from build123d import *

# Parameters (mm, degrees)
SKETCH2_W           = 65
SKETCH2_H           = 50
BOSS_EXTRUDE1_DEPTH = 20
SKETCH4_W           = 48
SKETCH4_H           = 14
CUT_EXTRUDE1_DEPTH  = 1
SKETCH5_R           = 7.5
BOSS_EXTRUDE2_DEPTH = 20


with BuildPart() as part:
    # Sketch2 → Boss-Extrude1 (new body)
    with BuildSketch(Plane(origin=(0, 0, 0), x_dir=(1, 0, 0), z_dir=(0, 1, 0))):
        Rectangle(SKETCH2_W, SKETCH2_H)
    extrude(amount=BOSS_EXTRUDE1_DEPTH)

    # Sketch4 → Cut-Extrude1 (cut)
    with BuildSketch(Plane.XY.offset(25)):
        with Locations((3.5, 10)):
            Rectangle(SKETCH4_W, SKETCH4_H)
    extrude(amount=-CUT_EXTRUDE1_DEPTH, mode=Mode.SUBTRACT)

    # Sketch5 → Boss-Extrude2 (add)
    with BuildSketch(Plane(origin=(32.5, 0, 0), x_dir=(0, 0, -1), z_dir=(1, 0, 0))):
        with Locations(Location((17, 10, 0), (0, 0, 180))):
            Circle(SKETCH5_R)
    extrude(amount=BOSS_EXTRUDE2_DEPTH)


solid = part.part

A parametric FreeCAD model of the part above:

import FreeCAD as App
import Part
import Sketcher
from FreeCAD import Vector

doc = App.newDocument("Part")
body = doc.addObject("PartDesign::Body", "Body")

# Sketch on XZ plane
sketch1 = doc.addObject("Sketcher::SketchObject", "Sketch")
body.addObject(sketch1)
sketch1.AttachmentSupport = (doc.XZ_Plane, [""])
sketch1.MapMode = "FlatFace"
sketch1.addGeometry([
    Part.LineSegment(Vector(-32, -25, 0), Vector(-32, 25, 0)),
    Part.LineSegment(Vector(-32, 25, 0), Vector(32, 25, 0)),
    Part.LineSegment(Vector(32, 25, 0), Vector(32, -25, 0)),
    Part.LineSegment(Vector(32, -25, 0), Vector(-32, -25, 0)),
], False)
sketch1.addConstraint([
    Sketcher.Constraint("Coincident", 0, 2, 1, 1),
    Sketcher.Constraint("Coincident", 1, 2, 2, 1),
    Sketcher.Constraint("Coincident", 2, 2, 3, 1),
    Sketcher.Constraint("Coincident", 3, 2, 0, 1),
    Sketcher.Constraint("Vertical", 0),
    Sketcher.Constraint("Horizontal", 1),
    Sketcher.Constraint("Vertical", 2),
    Sketcher.Constraint("Horizontal", 3),
    Sketcher.Constraint("Symmetric", 0, 2, 2, 2, -1, 1),
    Sketcher.Constraint("DistanceX", 1, 1, 1, 2, 65.0),
    Sketcher.Constraint("DistanceY", 0, 1, 0, 2, 50.0),
])
pad1 = doc.addObject("PartDesign::Pad", "Pad")
body.addObject(pad1)
pad1.Profile = sketch1
pad1.Length = 20
pad1.Reversed = True

# Sketch on XY plane
sketch2 = doc.addObject("Sketcher::SketchObject", "Sketch001")
body.addObject(sketch2)
sketch2.AttachmentSupport = (doc.XY_Plane, [""])
sketch2.MapMode = "FlatFace"
sketch2.AttachmentOffset = App.Placement(Vector(0, 0, 25), App.Rotation())
sketch2.addGeometry([
    Part.LineSegment(Vector(-20, 17, 0), Vector(-20, 3, 0)),
    Part.LineSegment(Vector(-20, 3, 0), Vector(28, 3, 0)),
    Part.LineSegment(Vector(28, 3, 0), Vector(28, 17, 0)),
    Part.LineSegment(Vector(28, 17, 0), Vector(-20, 17, 0)),
], False)
sketch2.addConstraint([
    Sketcher.Constraint("Coincident", 0, 2, 1, 1),
    Sketcher.Constraint("Coincident", 1, 2, 2, 1),
    Sketcher.Constraint("Coincident", 2, 2, 3, 1),
    Sketcher.Constraint("Coincident", 3, 2, 0, 1),
    Sketcher.Constraint("Vertical", 0),
    Sketcher.Constraint("Horizontal", 1),
    Sketcher.Constraint("Vertical", 2),
    Sketcher.Constraint("Horizontal", 3),
    Sketcher.Constraint("DistanceX", 1, 1, 1, 2, 48.0),
    Sketcher.Constraint("DistanceY", 0, 2, 0, 1, 14.0),
    Sketcher.Constraint("DistanceY", -1, 1, 0, 2, 3.0),
    Sketcher.Constraint("DistanceX", 0, 2, -1, 1, 20.5),
])
pocket1 = doc.addObject("PartDesign::Pocket", "Pocket")
body.addObject(pocket1)
pocket1.Profile = sketch2
pocket1.Length = 1

# Sketch on YZ plane
sketch3 = doc.addObject("Sketcher::SketchObject", "Sketch002")
body.addObject(sketch3)
sketch3.AttachmentSupport = (doc.YZ_Plane, [""])
sketch3.MapMode = "FlatFace"
sketch3.AttachmentOffset = App.Placement(Vector(0, 0, 32.5), App.Rotation())
sketch3.addGeometry(Part.Circle(Vector(10, -17, 0), Vector(0, 0, 1), 8), False)
sketch3.addConstraint([
    Sketcher.Constraint("Diameter", 0, 15.0),
    Sketcher.Constraint("DistanceX", -1, 1, 0, 3, 10.0),
    Sketcher.Constraint("DistanceY", 0, 3, -1, 1, 17.0),
])
pad2 = doc.addObject("PartDesign::Pad", "Pad001")
body.addObject(pad2)
pad2.Profile = sketch3
pad2.Length = 20

doc.recompute()
